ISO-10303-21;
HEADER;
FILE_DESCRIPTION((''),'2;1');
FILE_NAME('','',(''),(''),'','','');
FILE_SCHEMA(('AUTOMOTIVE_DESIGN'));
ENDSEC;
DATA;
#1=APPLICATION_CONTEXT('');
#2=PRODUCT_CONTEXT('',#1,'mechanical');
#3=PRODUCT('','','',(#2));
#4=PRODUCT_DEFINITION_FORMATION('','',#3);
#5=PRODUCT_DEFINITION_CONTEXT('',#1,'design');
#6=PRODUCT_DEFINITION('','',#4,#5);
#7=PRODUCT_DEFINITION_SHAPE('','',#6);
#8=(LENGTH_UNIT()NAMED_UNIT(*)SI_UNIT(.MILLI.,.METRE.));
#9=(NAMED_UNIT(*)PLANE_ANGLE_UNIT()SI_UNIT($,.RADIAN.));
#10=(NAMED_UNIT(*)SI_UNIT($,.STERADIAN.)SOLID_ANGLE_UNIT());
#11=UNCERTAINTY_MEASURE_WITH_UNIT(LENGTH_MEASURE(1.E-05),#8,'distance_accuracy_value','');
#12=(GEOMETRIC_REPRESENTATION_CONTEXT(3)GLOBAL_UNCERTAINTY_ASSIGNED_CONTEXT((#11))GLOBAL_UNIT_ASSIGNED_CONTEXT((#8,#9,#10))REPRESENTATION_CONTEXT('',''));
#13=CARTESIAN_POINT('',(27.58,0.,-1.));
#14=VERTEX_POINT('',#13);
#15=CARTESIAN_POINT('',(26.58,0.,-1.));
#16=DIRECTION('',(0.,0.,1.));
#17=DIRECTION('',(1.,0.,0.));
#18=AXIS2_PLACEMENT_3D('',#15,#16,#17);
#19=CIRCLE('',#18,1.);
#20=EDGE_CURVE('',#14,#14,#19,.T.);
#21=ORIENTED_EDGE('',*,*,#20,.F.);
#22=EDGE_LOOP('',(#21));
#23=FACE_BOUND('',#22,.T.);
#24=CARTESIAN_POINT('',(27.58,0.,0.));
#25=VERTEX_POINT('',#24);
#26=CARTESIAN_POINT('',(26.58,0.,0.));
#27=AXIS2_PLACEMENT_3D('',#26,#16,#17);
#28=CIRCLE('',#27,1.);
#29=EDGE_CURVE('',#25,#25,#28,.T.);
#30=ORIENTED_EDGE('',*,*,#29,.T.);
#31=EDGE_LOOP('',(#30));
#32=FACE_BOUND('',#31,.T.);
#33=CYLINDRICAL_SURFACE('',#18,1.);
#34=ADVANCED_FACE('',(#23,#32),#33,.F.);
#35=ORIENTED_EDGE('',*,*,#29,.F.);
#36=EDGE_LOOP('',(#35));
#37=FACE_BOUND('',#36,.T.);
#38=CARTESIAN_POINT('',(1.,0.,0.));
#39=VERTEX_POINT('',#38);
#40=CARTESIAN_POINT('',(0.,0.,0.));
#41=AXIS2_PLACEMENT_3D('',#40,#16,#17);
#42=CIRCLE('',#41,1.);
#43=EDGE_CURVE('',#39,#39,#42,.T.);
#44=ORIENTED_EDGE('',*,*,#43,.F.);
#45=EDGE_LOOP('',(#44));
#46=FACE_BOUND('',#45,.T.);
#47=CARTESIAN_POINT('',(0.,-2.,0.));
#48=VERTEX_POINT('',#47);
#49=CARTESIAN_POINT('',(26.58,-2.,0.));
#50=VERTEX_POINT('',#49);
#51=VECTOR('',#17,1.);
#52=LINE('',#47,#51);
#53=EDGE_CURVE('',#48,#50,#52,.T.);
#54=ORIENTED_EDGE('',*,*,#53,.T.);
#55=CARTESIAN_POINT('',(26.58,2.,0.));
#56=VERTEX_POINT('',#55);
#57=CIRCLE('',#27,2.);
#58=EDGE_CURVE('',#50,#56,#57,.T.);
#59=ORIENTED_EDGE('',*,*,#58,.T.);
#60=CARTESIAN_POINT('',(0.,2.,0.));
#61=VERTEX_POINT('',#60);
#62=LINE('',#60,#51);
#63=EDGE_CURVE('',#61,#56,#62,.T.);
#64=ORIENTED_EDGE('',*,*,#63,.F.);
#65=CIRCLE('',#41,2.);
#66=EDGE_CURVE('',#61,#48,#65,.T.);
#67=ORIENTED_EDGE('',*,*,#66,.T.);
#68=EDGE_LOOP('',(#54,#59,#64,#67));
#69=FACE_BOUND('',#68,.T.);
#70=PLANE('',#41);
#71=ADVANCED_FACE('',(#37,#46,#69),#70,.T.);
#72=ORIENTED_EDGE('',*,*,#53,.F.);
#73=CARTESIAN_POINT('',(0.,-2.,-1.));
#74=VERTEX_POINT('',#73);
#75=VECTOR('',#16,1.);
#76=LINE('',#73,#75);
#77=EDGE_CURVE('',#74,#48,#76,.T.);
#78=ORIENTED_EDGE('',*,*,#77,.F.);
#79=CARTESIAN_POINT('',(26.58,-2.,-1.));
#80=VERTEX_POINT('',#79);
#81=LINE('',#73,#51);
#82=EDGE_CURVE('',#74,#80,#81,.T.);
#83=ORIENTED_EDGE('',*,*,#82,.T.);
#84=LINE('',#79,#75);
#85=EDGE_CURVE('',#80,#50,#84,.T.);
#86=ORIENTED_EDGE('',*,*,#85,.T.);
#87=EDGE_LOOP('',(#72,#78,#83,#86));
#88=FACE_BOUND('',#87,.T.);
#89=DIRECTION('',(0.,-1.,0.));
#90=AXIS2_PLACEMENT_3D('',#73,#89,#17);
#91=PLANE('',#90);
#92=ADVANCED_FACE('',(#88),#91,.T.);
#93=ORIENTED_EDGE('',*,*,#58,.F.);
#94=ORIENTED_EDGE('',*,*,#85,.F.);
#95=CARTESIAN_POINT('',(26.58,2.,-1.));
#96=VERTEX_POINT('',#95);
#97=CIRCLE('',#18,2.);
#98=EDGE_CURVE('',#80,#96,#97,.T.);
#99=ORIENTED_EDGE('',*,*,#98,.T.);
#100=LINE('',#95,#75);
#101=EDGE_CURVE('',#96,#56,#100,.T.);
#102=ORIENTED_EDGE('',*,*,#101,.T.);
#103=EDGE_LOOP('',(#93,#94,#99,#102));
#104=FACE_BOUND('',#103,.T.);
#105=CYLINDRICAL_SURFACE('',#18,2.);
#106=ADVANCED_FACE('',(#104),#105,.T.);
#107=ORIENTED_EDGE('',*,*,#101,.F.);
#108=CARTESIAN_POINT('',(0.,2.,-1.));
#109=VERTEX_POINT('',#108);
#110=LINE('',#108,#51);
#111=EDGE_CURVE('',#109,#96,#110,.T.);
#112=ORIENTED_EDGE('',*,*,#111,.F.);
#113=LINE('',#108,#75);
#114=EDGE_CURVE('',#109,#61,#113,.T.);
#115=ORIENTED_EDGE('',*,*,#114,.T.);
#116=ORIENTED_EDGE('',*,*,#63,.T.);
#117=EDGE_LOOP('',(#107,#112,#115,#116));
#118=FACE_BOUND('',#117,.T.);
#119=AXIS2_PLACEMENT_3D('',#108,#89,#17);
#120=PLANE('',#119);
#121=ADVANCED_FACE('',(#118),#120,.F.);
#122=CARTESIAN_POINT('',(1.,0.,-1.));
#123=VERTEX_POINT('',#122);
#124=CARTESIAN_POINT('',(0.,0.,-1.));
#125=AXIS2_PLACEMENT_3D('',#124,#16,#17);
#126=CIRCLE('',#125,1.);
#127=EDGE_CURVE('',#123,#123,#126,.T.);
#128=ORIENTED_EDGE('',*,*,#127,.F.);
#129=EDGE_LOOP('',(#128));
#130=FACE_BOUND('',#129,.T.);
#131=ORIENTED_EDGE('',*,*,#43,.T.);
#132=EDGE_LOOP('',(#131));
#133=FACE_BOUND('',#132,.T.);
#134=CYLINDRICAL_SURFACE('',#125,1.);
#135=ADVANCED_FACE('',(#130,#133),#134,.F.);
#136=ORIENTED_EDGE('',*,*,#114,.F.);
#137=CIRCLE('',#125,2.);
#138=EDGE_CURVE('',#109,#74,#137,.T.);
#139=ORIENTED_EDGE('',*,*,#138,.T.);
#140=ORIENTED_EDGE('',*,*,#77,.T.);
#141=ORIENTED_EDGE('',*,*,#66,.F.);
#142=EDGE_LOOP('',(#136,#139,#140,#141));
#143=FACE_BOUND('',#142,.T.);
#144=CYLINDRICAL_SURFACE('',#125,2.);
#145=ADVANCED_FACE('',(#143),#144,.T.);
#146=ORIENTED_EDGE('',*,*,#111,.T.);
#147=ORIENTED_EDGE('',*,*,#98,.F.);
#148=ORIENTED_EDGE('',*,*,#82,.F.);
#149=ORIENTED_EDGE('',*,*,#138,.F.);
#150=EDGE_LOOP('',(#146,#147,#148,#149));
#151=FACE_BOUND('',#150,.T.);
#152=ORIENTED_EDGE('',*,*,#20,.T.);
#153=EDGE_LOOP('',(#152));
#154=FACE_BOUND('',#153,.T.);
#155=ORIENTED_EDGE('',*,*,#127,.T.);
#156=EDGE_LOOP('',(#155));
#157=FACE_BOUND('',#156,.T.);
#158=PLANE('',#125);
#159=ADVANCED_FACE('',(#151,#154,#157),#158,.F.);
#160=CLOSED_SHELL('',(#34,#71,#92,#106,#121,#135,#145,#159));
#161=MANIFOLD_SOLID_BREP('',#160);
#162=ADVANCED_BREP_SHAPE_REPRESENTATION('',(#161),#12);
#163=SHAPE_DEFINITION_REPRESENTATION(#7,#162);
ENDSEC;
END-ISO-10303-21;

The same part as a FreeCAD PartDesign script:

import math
import FreeCAD as App
import Part
import Sketcher
from FreeCAD import Vector
Q = App.Units.Quantity

doc = App.newDocument("Part")
params = doc.addObject("Spreadsheet::Sheet", "Params")
for row, (alias, value) in enumerate([
    ("sketch1_diameter", "2 mm"),
    ("sketch1_radius", "2 mm"),
    ("sketch1_width", "26.58 mm"),
    ("pad1_length", "1 mm"),
], start=1):
    params.set(f"A{row}", alias)
    params.set(f"B{row}", "=" + value)
    params.setAlias(f"B{row}", alias)

body = doc.addObject("PartDesign::Body", "Body")

# Sketch on XY plane
sketch1 = body.newObject("Sketcher::SketchObject", "Sketch")
sketch1.AttachmentSupport = (doc.getObject("XY_Plane"), [""])
sketch1.MapMode = "FlatFace"
sketch1.addGeometry([
    Part.ArcOfCircle(Part.Circle(Vector(0, 0, 0), Vector(0, 0, 1), 2), math.radians(90), math.radians(270)),  # 0
    Part.LineSegment(Vector(0, -2, 0), Vector(26.6, -2, 0)),  # 1
    Part.ArcOfCircle(Part.Circle(Vector(26.6, 0, 0), Vector(0, 0, 1), 2), math.radians(-90), math.radians(90)),  # 2
    Part.LineSegment(Vector(26.6, 2, 0), Vector(0, 2, 0)),  # 3
    Part.Circle(Vector(0, 0, 0), Vector(0, 0, 1), 1),  # 4
    Part.Circle(Vector(26.6, 0, 0), Vector(0, 0, 1), 1),  # 5
], False)
sketch1.addConstraint([
    Sketcher.Constraint("Tangent", 0, 2, 1, 1),
    Sketcher.Constraint("Tangent", 1, 2, 2, 1),
    Sketcher.Constraint("Tangent", 2, 2, 3, 1),
    Sketcher.Constraint("Tangent", 3, 2, 0, 1),
    Sketcher.Constraint("Horizontal", 1),
    Sketcher.Constraint("Horizontal", 3),
    Sketcher.Constraint("Coincident", 0, 3, -1, 1),
    Sketcher.Constraint("Coincident", 4, 3, -1, 1),
    Sketcher.Constraint("Coincident", 5, 3, 2, 3),
    Sketcher.Constraint("Equal", 4, 5),
    Sketcher.Constraint("Diameter", 4, Q("2 mm")),
    Sketcher.Constraint("Radius", 0, Q("2 mm")),
    Sketcher.Constraint("DistanceX", 1, 1, 1, 2, Q("26.58 mm")),
])
sketch1.setExpression("Constraints[10]", "Params.sketch1_diameter")
sketch1.setExpression("Constraints[11]", "Params.sketch1_radius")
sketch1.setExpression("Constraints[12]", "Params.sketch1_width")
pad1 = body.newObject("PartDesign::Pad", "Pad")
pad1.Profile = sketch1
pad1.setExpression("Length", "Params.pad1_length")
pad1.Reversed = True

doc.recompute()
